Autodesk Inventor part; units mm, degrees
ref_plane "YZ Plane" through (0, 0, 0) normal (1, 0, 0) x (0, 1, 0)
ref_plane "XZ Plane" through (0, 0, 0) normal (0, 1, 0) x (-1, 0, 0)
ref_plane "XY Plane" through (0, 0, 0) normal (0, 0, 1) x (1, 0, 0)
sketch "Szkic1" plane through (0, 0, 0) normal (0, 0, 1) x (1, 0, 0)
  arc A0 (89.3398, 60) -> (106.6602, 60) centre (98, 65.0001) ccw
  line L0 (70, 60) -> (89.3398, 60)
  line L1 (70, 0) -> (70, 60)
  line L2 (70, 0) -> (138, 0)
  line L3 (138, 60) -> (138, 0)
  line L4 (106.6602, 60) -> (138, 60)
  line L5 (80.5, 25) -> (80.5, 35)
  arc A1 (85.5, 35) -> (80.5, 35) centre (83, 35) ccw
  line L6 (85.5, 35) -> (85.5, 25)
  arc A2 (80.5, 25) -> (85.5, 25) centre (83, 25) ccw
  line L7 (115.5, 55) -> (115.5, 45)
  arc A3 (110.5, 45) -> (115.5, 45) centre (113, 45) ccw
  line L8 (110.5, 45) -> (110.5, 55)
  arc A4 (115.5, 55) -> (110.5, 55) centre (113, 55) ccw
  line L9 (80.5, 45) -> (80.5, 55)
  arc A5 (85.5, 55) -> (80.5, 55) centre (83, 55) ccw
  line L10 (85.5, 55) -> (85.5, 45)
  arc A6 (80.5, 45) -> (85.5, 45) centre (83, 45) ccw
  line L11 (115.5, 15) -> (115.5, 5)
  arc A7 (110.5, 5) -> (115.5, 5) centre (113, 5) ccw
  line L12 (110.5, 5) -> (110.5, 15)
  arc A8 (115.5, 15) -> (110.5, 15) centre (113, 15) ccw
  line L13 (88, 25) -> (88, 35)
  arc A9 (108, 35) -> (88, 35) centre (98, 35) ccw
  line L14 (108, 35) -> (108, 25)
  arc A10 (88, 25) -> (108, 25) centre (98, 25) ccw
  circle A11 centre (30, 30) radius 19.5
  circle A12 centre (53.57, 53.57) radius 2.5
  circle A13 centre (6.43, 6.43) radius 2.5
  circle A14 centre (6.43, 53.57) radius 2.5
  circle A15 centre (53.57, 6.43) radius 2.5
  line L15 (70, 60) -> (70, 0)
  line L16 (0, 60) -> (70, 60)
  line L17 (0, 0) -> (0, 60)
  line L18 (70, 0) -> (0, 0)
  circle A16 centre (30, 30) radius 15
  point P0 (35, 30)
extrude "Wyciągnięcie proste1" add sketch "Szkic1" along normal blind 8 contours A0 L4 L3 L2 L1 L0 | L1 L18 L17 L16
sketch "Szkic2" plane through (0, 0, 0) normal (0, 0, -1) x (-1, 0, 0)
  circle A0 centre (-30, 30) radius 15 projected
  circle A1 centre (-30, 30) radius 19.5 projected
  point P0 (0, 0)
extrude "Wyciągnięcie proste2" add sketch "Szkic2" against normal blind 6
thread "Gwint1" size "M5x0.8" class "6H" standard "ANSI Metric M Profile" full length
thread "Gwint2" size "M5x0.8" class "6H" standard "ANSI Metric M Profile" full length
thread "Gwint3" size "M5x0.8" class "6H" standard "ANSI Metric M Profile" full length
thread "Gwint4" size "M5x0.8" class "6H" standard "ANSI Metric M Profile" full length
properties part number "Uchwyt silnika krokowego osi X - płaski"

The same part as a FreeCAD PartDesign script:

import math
import FreeCAD as App
import Part
import Sketcher
Q = App.Units.Quantity

doc = App.newDocument("Part")
params = doc.addObject("Spreadsheet::Sheet", "Params")
for row, (alias, value) in enumerate([
    ("sketch1_diameter", "5 mm"),
    ("sketch1_diameter2", "39 mm"),
    ("sketch1_radius", "10 mm"),
    ("sketch1_width", "138 mm"),
    ("sketch1_height", "60 mm"),
    ("pad1_length", "8 mm"),
    ("sketch2_diameter", "39 mm"),
    ("sketch2_diameter2", "30 mm"),
    ("pad2_length", "6 mm"),
], start=1):
    params.set(f"A{row}", alias)
    params.set(f"B{row}", "=" + value)
    params.setAlias(f"B{row}", alias)

body = doc.addObject("PartDesign::Body", "Body")

sketch1 = body.newObject("Sketcher::SketchObject", "Sketch")
sketch1.AttachmentSupport = (doc.getObject("XY_Plane"), [""])
sketch1.MapMode = "FlatFace"
sketch1.addGeometry(Part.ArcOfCircle(Part.Circle(App.Vector(98, 65.0001, 0), App.Vector(0, 0, 1), 10.000003), math.radians(-149.999349), math.radians(-30.000651)), False)
sketch1.addGeometry(Part.LineSegment(App.Vector(89.3398, 60, 0), App.Vector(0, 60, 0)), False)
sketch1.addGeometry(Part.LineSegment(App.Vector(0, 60, 0), App.Vector(0, 0, 0)), False)
sketch1.addGeometry(Part.LineSegment(App.Vector(0, 0, 0), App.Vector(138, 0, 0)), False)
sketch1.addGeometry(Part.LineSegment(App.Vector(138, 0, 0), App.Vector(138, 60, 0)), False)
sketch1.addGeometry(Part.LineSegment(App.Vector(138, 60, 0), App.Vector(106.6602, 60, 0)), False)
sketch1.addGeometry(Part.ArcOfCircle(Part.Circle(App.Vector(113, 15, 0), App.Vector(0, 0, 1), 2.5), math.radians(0), math.radians(180)), False)
sketch1.addGeometry(Part.LineSegment(App.Vector(115.5, 15, 0), App.Vector(115.5, 5, 0)), False)
sketch1.addGeometry(Part.ArcOfCircle(Part.Circle(App.Vector(113, 5, 0), App.Vector(0, 0, 1), 2.5), math.radians(180), math.radians(360)), False)
sketch1.addGeometry(Part.LineSegment(App.Vector(110.5, 5, 0), App.Vector(110.5, 15, 0)), False)
sketch1.addGeometry(Part.ArcOfCircle(Part.Circle(App.Vector(83, 25, 0), App.Vector(0, 0, 1), 2.5), math.radians(180), math.radians(360)), False)
sketch1.addGeometry(Part.LineSegment(App.Vector(80.5, 25, 0), App.Vector(80.5, 35, 0)), False)
sketch1.addGeometry(Part.ArcOfCircle(Part.Circle(App.Vector(83, 35, 0), App.Vector(0, 0, 1), 2.5), math.radians(0), math.radians(180)), False)
sketch1.addGeometry(Part.LineSegment(App.Vector(85.5, 35, 0), App.Vector(85.5, 25, 0)), False)
sketch1.addGeometry(Part.ArcOfCircle(Part.Circle(App.Vector(98, 25, 0), App.Vector(0, 0, 1), 10), math.radians(180), math.radians(360)), False)
sketch1.addGeometry(Part.LineSegment(App.Vector(88, 25, 0), App.Vector(88, 35, 0)), False)
sketch1.addGeometry(Part.ArcOfCircle(Part.Circle(App.Vector(98, 35, 0), App.Vector(0, 0, 1), 10), math.radians(0), math.radians(180)), False)
sketch1.addGeometry(Part.LineSegment(App.Vector(108, 35, 0), App.Vector(108, 25, 0)), False)
sketch1.addGeometry(Part.ArcOfCircle(Part.Circle(App.Vector(83, 45, 0), App.Vector(0, 0, 1), 2.5), math.radians(180), math.radians(360)), False)
sketch1.addGeometry(Part.LineSegment(App.Vector(80.5, 45, 0), App.Vector(80.5, 55, 0)), False)
sketch1.addGeometry(Part.ArcOfCircle(Part.Circle(App.Vector(83, 55, 0), App.Vector(0, 0, 1), 2.5), math.radians(0), math.radians(180)), False)
sketch1.addGeometry(Part.LineSegment(App.Vector(85.5, 55, 0), App.Vector(85.5, 45, 0)), False)
sketch1.addGeometry(Part.ArcOfCircle(Part.Circle(App.Vector(113, 55, 0), App.Vector(0, 0, 1), 2.5), math.radians(0), math.radians(180)), False)
sketch1.addGeometry(Part.LineSegment(App.Vector(115.5, 55, 0), App.Vector(115.5, 45, 0)), False)
sketch1.addGeometry(Part.ArcOfCircle(Part.Circle(App.Vector(113, 45, 0), App.Vector(0, 0, 1), 2.5), math.radians(180), math.radians(360)), False)
sketch1.addGeometry(Part.LineSegment(App.Vector(110.5, 45, 0), App.Vector(110.5, 55, 0)), False)
sketch1.addGeometry(Part.Circle(App.Vector(53.57, 53.57, 0), App.Vector(0, 0, 1), 2.5), False)
sketch1.addGeometry(Part.Circle(App.Vector(6.43, 6.43, 0), App.Vector(0, 0, 1), 2.5), False)
sketch1.addGeometry(Part.Circle(App.Vector(53.57, 6.43, 0), App.Vector(0, 0, 1), 2.5), False)
sketch1.addGeometry(Part.Circle(App.Vector(30, 30, 0), App.Vector(0, 0, 1), 19.5), False)
sketch1.addGeometry(Part.Circle(App.Vector(6.43, 53.57, 0), App.Vector(0, 0, 1), 2.5), False)
sketch1.addConstraint(Sketcher.Constraint("Coincident", 0, 1, 1, 1))
sketch1.addConstraint(Sketcher.Constraint("Coincident", 1, 2, 2, 1))
sketch1.addConstraint(Sketcher.Constraint("Coincident", 2, 2, 3, 1))
sketch1.addConstraint(Sketcher.Constraint("Coincident", 3, 2, 4, 1))
sketch1.addConstraint(Sketcher.Constraint("Coincident", 4, 2, 5, 1))
sketch1.addConstraint(Sketcher.Constraint("Coincident", 5, 2, 0, 2))
sketch1.addConstraint(Sketcher.Constraint("Tangent", 6, 1, 7, 1))
sketch1.addConstraint(Sketcher.Constraint("Tangent", 7, 2, 8, 2))
sketch1.addConstraint(Sketcher.Constraint("Tangent", 8, 1, 9, 1))
sketch1.addConstraint(Sketcher.Constraint("Tangent", 9, 2, 6, 2))
sketch1.addConstraint(Sketcher.Constraint("Tangent", 10, 1, 11, 1))
sketch1.addConstraint(Sketcher.Constraint("Tangent", 11, 2, 12, 2))
sketch1.addConstraint(Sketcher.Constraint("Tangent", 12, 1, 13, 1))
sketch1.addConstraint(Sketcher.Constraint("Tangent", 13, 2, 10, 2))
sketch1.addConstraint(Sketcher.Constraint("Tangent", 14, 1, 15, 1))
sketch1.addConstraint(Sketcher.Constraint("Tangent", 15, 2, 16, 2))
sketch1.addConstraint(Sketcher.Constraint("Tangent", 16, 1, 17, 1))
sketch1.addConstraint(Sketcher.Constraint("Tangent", 17, 2, 14, 2))
sketch1.addConstraint(Sketcher.Constraint("Tangent", 18, 1, 19, 1))
sketch1.addConstraint(Sketcher.Constraint("Tangent", 19, 2, 20, 2))
sketch1.addConstraint(Sketcher.Constraint("Tangent", 20, 1, 21, 1))
sketch1.addConstraint(Sketcher.Constraint("Tangent", 21, 2, 18, 2))
sketch1.addConstraint(Sketcher.Constraint("Tangent", 22, 1, 23, 1))
sketch1.addConstraint(Sketcher.Constraint("Tangent", 23, 2, 24, 2))
sketch1.addConstraint(Sketcher.Constraint("Tangent", 24, 1, 25, 1))
sketch1.addConstraint(Sketcher.Constraint("Tangent", 25, 2, 22, 2))
sketch1.addConstraint(Sketcher.Constraint("Horizontal", 1))
sketch1.addConstraint(Sketcher.Constraint("Vertical", 2))
sketch1.addConstraint(Sketcher.Constraint("Horizontal", 3))
sketch1.addConstraint(Sketcher.Constraint("Vertical", 4))
sketch1.addConstraint(Sketcher.Constraint("Horizontal", 5))
sketch1.addConstraint(Sketcher.Constraint("Vertical", 7))
sketch1.addConstraint(Sketcher.Constraint("Vertical", 9))
sketch1.addConstraint(Sketcher.Constraint("Vertical", 11))
sketch1.addConstraint(Sketcher.Constraint("Vertical", 13))
sketch1.addConstraint(Sketcher.Constraint("Vertical", 15))
sketch1.addConstraint(Sketcher.Constraint("Vertical", 17))
sketch1.addConstraint(Sketcher.Constraint("Vertical", 19))
sketch1.addConstraint(Sketcher.Constraint("Vertical", 21))
sketch1.addConstraint(Sketcher.Constraint("Vertical", 23))
sketch1.addConstraint(Sketcher.Constraint("Vertical", 25))
sketch1.addConstraint(Sketcher.Constraint("Coincident", 2, 2, -1, 1))
sketch1.addConstraint(Sketcher.Constraint("Equal", 8, 10))
sketch1.addConstraint(Sketcher.Constraint("Equal", 0, 14))
sketch1.addConstraint(Sketcher.Constraint("Equal", 12, 18))
sketch1.addConstraint(Sketcher.Constraint("Equal", 20, 22))
sketch1.addConstraint(Sketcher.Constraint("Equal", 24, 26))
sketch1.addConstraint(Sketcher.Constraint("Equal", 26, 27))
sketch1.addConstraint(Sketcher.Constraint("Equal", 27, 28))
sketch1.addConstraint(Sketcher.Constraint("Equal", 28, 30))
sketch1.addConstraint(Sketcher.Constraint("Horizontal", 10, 3, 14, 3))
sketch1.addConstraint(Sketcher.Constraint("Horizontal", 12, 3, 16, 3))
sketch1.addConstraint(Sketcher.Constraint("Horizontal", 20, 3, 22, 3))
sketch1.addConstraint(Sketcher.Constraint("Horizontal", 18, 3, 24, 3))
sketch1.addConstraint(Sketcher.Constraint("Horizontal", 27, 3, 28, 3))
sketch1.addConstraint(Sketcher.Constraint("Horizontal", 26, 3, 30, 3))
sketch1.addConstraint(Sketcher.Constraint("Horizontal", 1, 2, 4, 2))
sketch1.addConstraint(Sketcher.Constraint("Vertical", 0, 3, 14, 3))
sketch1.addConstraint(Sketcher.Constraint("Vertical", 12, 3, 18, 3))
sketch1.addConstraint(Sketcher.Constraint("Vertical", 8, 3, 22, 3))
sketch1.addConstraint(Sketcher.Constraint("Vertical", 26, 3, 28, 3))
sketch1.addConstraint(Sketcher.Constraint("Vertical", 27, 3, 30, 3))
sketch1.addConstraint(Sketcher.Constraint("Equal", 9, 11))
sketch1.addConstraint(Sketcher.Constraint("Equal", 17, 19))
sketch1.addConstraint(Sketcher.Constraint("Diameter", 26, Q("5 mm")))
sketch1.addConstraint(Sketcher.Constraint("Diameter", 29, Q("39 mm")))
sketch1.addConstraint(Sketcher.Constraint("Radius", 0, Q("10 mm")))
sketch1.addConstraint(Sketcher.Constraint("DistanceX", 3, 1, 3, 2, Q("138 mm")))
sketch1.addConstraint(Sketcher.Constraint("DistanceY", 2, 2, 2, 1, Q("60 mm")))
sketch1.addConstraint(Sketcher.Constraint("DistanceY", 7, 2, 7, 1, Q("10 mm")))
sketch1.addConstraint(Sketcher.Constraint("DistanceX", -1, 1, 0, 3, Q("98 mm")))
sketch1.addConstraint(Sketcher.Constraint("DistanceY", -1, 1, 0, 3, Q("65 mm")))
sketch1.addConstraint(Sketcher.Constraint("DistanceX", -1, 1, 6, 3, Q("113 mm")))
sketch1.addConstraint(Sketcher.Constraint("DistanceY", -1, 1, 6, 3, Q("15 mm")))
sketch1.addConstraint(Sketcher.Constraint("DistanceX", -1, 1, 10, 3, Q("83 mm")))
sketch1.addConstraint(Sketcher.Constraint("DistanceY", -1, 1, 10, 3, Q("25 mm")))
sketch1.addConstraint(Sketcher.Constraint("DistanceY", -1, 1, 18, 3, Q("45 mm")))
sketch1.addConstraint(Sketcher.Constraint("DistanceX", -1, 1, 29, 3, Q("30 mm")))
sketch1.addConstraint(Sketcher.Constraint("DistanceY", -1, 1, 29, 3, Q("30 mm")))
sketch1.addConstraint(Sketcher.Constraint("DistanceX", -1, 1, 26, 3, Q("53.57 mm")))
sketch1.addConstraint(Sketcher.Constraint("DistanceY", -1, 1, 26, 3, Q("53.57 mm")))
sketch1.addConstraint(Sketcher.Constraint("DistanceX", -1, 1, 27, 3, Q("6.43 mm")))
sketch1.addConstraint(Sketcher.Constraint("DistanceY", -1, 1, 27, 3, Q("6.43 mm")))
sketch1.setExpression("Constraints[64]", "Params.sketch1_diameter")
sketch1.setExpression("Constraints[65]", "Params.sketch1_diameter2")
sketch1.setExpression("Constraints[66]", "Params.sketch1_radius")
sketch1.setExpression("Constraints[67]", "Params.sketch1_width")
sketch1.setExpression("Constraints[68]", "Params.sketch1_height")
pad1 = body.newObject("PartDesign::Pad", "Pad")
pad1.Profile = sketch1
pad1.setExpression("Length", "Params.pad1_length")

sketch2 = body.newObject("Sketcher::SketchObject", "Sketch001")
sketch2.AttachmentSupport = (doc.getObject("XY_Plane"), [""])
sketch2.MapMode = "FlatFace"
sketch2.addGeometry(Part.Circle(App.Vector(30, 30, 0), App.Vector(0, 0, 1), 19.5), False)
sketch2.addGeometry(Part.Circle(App.Vector(30, 30, 0), App.Vector(0, 0, 1), 15), False)
sketch2.addConstraint(Sketcher.Constraint("Coincident", 1, 3, 0, 3))
sketch2.addConstraint(Sketcher.Constraint("Diameter", 0, Q("39 mm")))
sketch2.addConstraint(Sketcher.Constraint("Diameter", 1, Q("30 mm")))
sketch2.addConstraint(Sketcher.Constraint("DistanceX", -1, 1, 0, 3, Q("30 mm")))
sketch2.addConstraint(Sketcher.Constraint("DistanceY", -1, 1, 0, 3, Q("30 mm")))
sketch2.setExpression("Constraints[1]", "Params.sketch2_diameter")
sketch2.setExpression("Constraints[2]", "Params.sketch2_diameter2")
pad2 = body.newObject("PartDesign::Pad", "Pad001")
pad2.Profile = sketch2
pad2.setExpression("Length", "Params.pad2_length")

doc.recompute()
